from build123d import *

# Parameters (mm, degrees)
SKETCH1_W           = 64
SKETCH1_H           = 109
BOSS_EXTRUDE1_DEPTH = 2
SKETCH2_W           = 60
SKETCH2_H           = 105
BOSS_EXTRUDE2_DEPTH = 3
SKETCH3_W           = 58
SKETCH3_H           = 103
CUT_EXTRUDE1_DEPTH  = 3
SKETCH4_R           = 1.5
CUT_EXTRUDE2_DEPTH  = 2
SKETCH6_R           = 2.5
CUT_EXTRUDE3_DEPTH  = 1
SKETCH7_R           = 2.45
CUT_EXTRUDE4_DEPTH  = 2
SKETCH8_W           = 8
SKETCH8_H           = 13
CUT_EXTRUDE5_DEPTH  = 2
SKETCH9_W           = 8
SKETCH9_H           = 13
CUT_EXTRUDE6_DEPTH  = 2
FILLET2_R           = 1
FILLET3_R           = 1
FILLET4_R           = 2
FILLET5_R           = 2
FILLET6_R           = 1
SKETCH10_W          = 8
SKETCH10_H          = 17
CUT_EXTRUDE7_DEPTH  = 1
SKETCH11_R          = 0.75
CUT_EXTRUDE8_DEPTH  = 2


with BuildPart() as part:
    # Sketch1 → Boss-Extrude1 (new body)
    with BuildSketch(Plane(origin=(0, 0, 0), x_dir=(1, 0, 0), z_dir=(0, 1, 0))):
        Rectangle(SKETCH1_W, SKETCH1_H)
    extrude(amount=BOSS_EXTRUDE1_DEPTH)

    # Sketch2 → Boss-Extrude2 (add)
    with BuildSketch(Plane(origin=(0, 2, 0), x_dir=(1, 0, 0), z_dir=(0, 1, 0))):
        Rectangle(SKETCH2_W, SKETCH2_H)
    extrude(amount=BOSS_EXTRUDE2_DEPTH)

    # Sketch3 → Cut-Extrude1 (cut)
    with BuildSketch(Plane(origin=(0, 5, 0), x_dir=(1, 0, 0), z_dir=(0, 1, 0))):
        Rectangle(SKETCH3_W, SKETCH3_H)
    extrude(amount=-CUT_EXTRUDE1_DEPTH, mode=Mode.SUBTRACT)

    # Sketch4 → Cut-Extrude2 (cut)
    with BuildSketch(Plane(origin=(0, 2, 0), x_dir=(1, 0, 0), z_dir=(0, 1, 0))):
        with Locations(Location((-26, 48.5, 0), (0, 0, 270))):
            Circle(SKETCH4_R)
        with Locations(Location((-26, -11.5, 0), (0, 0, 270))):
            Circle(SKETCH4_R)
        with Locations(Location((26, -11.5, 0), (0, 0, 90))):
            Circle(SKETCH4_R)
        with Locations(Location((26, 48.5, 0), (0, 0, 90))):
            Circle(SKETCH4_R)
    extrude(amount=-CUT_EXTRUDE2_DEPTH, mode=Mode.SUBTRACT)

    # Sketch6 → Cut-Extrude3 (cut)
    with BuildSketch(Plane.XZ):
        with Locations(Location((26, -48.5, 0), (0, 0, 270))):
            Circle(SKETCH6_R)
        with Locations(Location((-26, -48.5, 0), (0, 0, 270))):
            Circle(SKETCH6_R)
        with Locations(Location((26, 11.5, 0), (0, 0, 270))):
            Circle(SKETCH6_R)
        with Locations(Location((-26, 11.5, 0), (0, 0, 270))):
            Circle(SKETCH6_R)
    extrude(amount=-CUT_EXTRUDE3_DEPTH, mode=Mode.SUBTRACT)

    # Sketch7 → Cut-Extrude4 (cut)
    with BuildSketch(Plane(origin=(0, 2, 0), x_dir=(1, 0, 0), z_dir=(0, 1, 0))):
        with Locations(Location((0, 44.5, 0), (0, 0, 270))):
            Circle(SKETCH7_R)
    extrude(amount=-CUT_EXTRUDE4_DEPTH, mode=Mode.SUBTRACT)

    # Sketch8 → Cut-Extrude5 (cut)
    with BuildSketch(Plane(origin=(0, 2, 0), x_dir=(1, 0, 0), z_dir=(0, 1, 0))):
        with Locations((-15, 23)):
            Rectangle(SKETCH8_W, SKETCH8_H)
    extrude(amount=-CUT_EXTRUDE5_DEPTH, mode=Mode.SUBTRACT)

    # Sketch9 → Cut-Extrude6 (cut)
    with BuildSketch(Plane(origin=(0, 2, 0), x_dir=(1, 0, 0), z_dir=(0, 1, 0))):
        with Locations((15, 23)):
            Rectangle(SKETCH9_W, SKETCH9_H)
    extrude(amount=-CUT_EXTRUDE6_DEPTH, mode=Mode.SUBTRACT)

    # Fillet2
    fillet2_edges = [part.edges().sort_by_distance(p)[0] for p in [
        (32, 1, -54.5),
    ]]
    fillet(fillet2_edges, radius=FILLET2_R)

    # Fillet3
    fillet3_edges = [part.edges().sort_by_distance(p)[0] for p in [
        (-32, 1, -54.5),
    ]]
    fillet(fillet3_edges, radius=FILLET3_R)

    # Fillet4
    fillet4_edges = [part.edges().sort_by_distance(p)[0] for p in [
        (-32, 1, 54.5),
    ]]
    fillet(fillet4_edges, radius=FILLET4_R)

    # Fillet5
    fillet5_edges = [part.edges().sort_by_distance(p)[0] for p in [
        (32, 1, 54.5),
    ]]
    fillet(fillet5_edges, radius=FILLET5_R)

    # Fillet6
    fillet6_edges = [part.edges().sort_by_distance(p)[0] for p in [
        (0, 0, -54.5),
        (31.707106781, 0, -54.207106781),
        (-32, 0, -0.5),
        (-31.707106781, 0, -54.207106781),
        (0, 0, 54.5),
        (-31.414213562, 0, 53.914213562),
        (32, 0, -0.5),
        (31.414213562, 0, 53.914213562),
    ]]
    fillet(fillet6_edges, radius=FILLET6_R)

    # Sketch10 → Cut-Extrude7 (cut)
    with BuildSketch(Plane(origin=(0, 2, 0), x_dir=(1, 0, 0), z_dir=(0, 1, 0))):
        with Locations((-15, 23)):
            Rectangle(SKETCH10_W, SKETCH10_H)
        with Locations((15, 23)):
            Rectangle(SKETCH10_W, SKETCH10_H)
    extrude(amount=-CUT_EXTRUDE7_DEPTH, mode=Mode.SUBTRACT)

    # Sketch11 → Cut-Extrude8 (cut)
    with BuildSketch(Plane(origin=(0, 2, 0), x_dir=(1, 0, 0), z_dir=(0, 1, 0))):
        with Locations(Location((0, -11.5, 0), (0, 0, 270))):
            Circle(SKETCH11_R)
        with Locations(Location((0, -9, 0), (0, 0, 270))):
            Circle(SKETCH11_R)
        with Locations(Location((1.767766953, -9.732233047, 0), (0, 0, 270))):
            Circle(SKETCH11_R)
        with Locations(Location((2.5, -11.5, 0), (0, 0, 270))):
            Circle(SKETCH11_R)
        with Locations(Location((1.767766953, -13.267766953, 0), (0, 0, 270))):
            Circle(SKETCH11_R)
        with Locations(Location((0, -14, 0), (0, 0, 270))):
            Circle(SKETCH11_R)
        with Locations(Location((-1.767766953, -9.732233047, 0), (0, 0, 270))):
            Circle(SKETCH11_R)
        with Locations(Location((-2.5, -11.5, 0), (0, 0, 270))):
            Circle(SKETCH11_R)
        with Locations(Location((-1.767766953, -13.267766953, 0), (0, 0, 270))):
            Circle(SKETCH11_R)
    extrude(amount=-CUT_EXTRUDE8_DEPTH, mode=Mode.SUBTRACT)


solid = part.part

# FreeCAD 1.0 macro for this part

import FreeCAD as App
import Part
import Sketcher
Q = App.Units.Quantity


def edges_at(feature, points):
    """Names of the edges that pass closest to the given points."""
    edges = feature.Shape.Edges
    near = lambda p: min(range(len(edges)), key=lambda i: edges[i].distToShape(Part.Vertex(*p))[0])
    return sorted({f"Edge{near(p) + 1}" for p in points})


def add_polygon(sketch, points):
    """Adds a closed chain of lines whose ends are joined by coincident constraints."""
    first, n = sketch.GeometryCount, len(points)
    for a, b in zip(points, points[1:] + points[:1]):
        sketch.addGeometry(Part.LineSegment(App.Vector(*a, 0), App.Vector(*b, 0)), False)
    for i in range(n):
        sketch.addConstraint(Sketcher.Constraint("Coincident", first + i, 2, first + (i + 1) % n, 1))

doc = App.newDocument("Part")
params = doc.addObject("Spreadsheet::Sheet", "Params")
for row, (alias, value) in enumerate([
    ("sketch1_width", "64 mm"),
    ("sketch1_height", "109 mm"),
    ("pad1_length", "2 mm"),
    ("sketch2_width", "60 mm"),
    ("sketch2_height", "105 mm"),
    ("pad2_length", "3 mm"),
    ("sketch3_width", "58 mm"),
    ("sketch3_height", "103 mm"),
    ("pocket1_length", "3 mm"),
    ("sketch4_diameter", "3 mm"),
    ("pocket2_length", "2 mm"),
    ("sketch5_diameter", "5 mm"),
    ("pocket3_length", "1 mm"),
    ("sketch6_diameter", "4.9 mm"),
    ("pocket4_length", "2 mm"),
    ("sketch7_width", "8 mm"),
    ("sketch7_height", "13 mm"),
    ("pocket5_length", "2 mm"),
    ("sketch8_width", "8 mm"),
    ("sketch8_height", "13 mm"),
    ("pocket6_length", "2 mm"),
    ("fillet_radius", "1 mm"),
    ("fillet2_radius", "1 mm"),
    ("fillet3_radius", "2 mm"),
    ("fillet4_radius", "2 mm"),
    ("fillet5_radius", "1 mm"),
    ("sketch9_width", "8 mm"),
    ("sketch9_height", "17 mm"),
    ("pocket7_length", "1 mm"),
    ("sketch10_diameter", "1.5 mm"),
    ("pocket8_length", "2 mm"),
], start=1):
    params.set(f"A{row}", alias)
    params.set(f"B{row}", "=" + value)
    params.setAlias(f"B{row}", alias)

body = doc.addObject("PartDesign::Body", "Body")

# Sketch on XZ plane
sketch1 = doc.addObject("Sketcher::SketchObject", "Sketch")
body.addObject(sketch1)
sketch1.AttachmentSupport = (doc.XZ_Plane, [""])
sketch1.MapMode = "FlatFace"
add_polygon(sketch1, [(-32, -54), (-32, 54), (32, 54), (32, -54)])  # lines 0-3
sketch1.addConstraint(Sketcher.Constraint("Vertical", 0))
sketch1.addConstraint(Sketcher.Constraint("Horizontal", 1))
sketch1.addConstraint(Sketcher.Constraint("Vertical", 2))
sketch1.addConstraint(Sketcher.Constraint("Horizontal", 3))
sketch1.addConstraint(Sketcher.Constraint("Symmetric", 0, 2, 2, 2, -1, 1))
sketch1.addConstraint(Sketcher.Constraint("DistanceX", 1, 1, 1, 2, Q("64 mm")))
sketch1.addConstraint(Sketcher.Constraint("DistanceY", 0, 1, 0, 2, Q("109 mm")))
sketch1.setExpression("Constraints[9]", "Params.sketch1_width")
sketch1.setExpression("Constraints[10]", "Params.sketch1_height")
pad1 = doc.addObject("PartDesign::Pad", "Pad")
body.addObject(pad1)
pad1.Profile = sketch1
pad1.setExpression("Length", "Params.pad1_length")
pad1.Reversed = True

# Sketch on XZ plane
sketch2 = doc.addObject("Sketcher::SketchObject", "Sketch001")
body.addObject(sketch2)
sketch2.AttachmentSupport = (doc.XZ_Plane, [""])
sketch2.MapMode = "FlatFace"
sketch2.AttachmentOffset = App.Placement(App.Vector(0, 0, -2), App.Rotation())
add_polygon(sketch2, [(-30, -52), (-30, 52), (30, 52), (30, -52)])  # lines 0-3
sketch2.addConstraint(Sketcher.Constraint("Vertical", 0))
sketch2.addConstraint(Sketcher.Constraint("Horizontal", 1))
sketch2.addConstraint(Sketcher.Constraint("Vertical", 2))
sketch2.addConstraint(Sketcher.Constraint("Horizontal", 3))
sketch2.addConstraint(Sketcher.Constraint("Symmetric", 0, 2, 2, 2, -1, 1))
sketch2.addConstraint(Sketcher.Constraint("DistanceX", 1, 1, 1, 2, Q("60 mm")))
sketch2.addConstraint(Sketcher.Constraint("DistanceY", 0, 1, 0, 2, Q("105 mm")))
sketch2.setExpression("Constraints[9]", "Params.sketch2_width")
sketch2.setExpression("Constraints[10]", "Params.sketch2_height")
pad2 = doc.addObject("PartDesign::Pad", "Pad001")
body.addObject(pad2)
pad2.Profile = sketch2
pad2.setExpression("Length", "Params.pad2_length")
pad2.Reversed = True

# Sketch on XZ plane
sketch3 = doc.addObject("Sketcher::SketchObject", "Sketch002")
body.addObject(sketch3)
sketch3.AttachmentSupport = (doc.XZ_Plane, [""])
sketch3.MapMode = "FlatFace"
sketch3.AttachmentOffset = App.Placement(App.Vector(0, 0, -5), App.Rotation())
add_polygon(sketch3, [(-29, -52), (-29, 52), (29, 52), (29, -52)])  # lines 0-3
sketch3.addConstraint(Sketcher.Constraint("Vertical", 0))
sketch3.addConstraint(Sketcher.Constraint("Horizontal", 1))
sketch3.addConstraint(Sketcher.Constraint("Vertical", 2))
sketch3.addConstraint(Sketcher.Constraint("Horizontal", 3))
sketch3.addConstraint(Sketcher.Constraint("Symmetric", 0, 2, 2, 2, -1, 1))
sketch3.addConstraint(Sketcher.Constraint("DistanceX", 1, 1, 1, 2, Q("58 mm")))
sketch3.addConstraint(Sketcher.Constraint("DistanceY", 0, 1, 0, 2, Q("103 mm")))
sketch3.setExpression("Constraints[9]", "Params.sketch3_width")
sketch3.setExpression("Constraints[10]", "Params.sketch3_height")
pocket1 = doc.addObject("PartDesign::Pocket", "Pocket")
body.addObject(pocket1)
pocket1.Profile = sketch3
pocket1.setExpression("Length", "Params.pocket1_length")
pocket1.Reversed = True

# Sketch on XZ plane
sketch4 = doc.addObject("Sketcher::SketchObject", "Sketch003")
body.addObject(sketch4)
sketch4.AttachmentSupport = (doc.XZ_Plane, [""])
sketch4.MapMode = "FlatFace"
sketch4.AttachmentOffset = App.Placement(App.Vector(0, 0, -2), App.Rotation())
sketch4.addGeometry(Part.Circle(App.Vector(-26, -48.5, 0), App.Vector(0, 0, 1), 1.5), False)
sketch4.addGeometry(Part.Circle(App.Vector(-26, 11.5, 0), App.Vector(0, 0, 1), 1.5), False)
sketch4.addGeometry(Part.Circle(App.Vector(26, 11.5, 0), App.Vector(0, 0, 1), 1.5), False)
sketch4.addGeometry(Part.Circle(App.Vector(26, -48.5, 0), App.Vector(0, 0, 1), 1.5), False)
sketch4.addConstraint(Sketcher.Constraint("Equal", 0, 1))
sketch4.addConstraint(Sketcher.Constraint("Equal", 1, 2))
sketch4.addConstraint(Sketcher.Constraint("Equal", 2, 3))
sketch4.addConstraint(Sketcher.Constraint("Symmetric", 1, 3, 2, 3, -2))
sketch4.addConstraint(Sketcher.Constraint("Symmetric", 0, 3, 3, 3, -2))
sketch4.addConstraint(Sketcher.Constraint("Vertical", 0, 3, 1, 3))
sketch4.addConstraint(Sketcher.Constraint("Diameter", 0, Q("3 mm")))
sketch4.addConstraint(Sketcher.Constraint("DistanceX", 0, 3, -1, 1, Q("26 mm")))
sketch4.addConstraint(Sketcher.Constraint("DistanceY", 0, 3, 1, 3, Q("60 mm")))
sketch4.addConstraint(Sketcher.Constraint("DistanceY", 0, 3, -1, 1, Q("48.5 mm")))
sketch4.setExpression("Constraints[6]", "Params.sketch4_diameter")
pocket2 = doc.addObject("PartDesign::Pocket", "Pocket001")
body.addObject(pocket2)
pocket2.Profile = sketch4
pocket2.setExpression("Length", "Params.pocket2_length")
pocket2.Reversed = True

# Sketch on XZ plane
sketch5 = doc.addObject("Sketcher::SketchObject", "Sketch004")
body.addObject(sketch5)
sketch5.AttachmentSupport = (doc.XZ_Plane, [""])
sketch5.MapMode = "FlatFace"
sketch5.addGeometry(Part.Circle(App.Vector(26, -48.5, 0), App.Vector(0, 0, 1), 2.5), False)
sketch5.addGeometry(Part.Circle(App.Vector(-26, -48.5, 0), App.Vector(0, 0, 1), 2.5), False)
sketch5.addGeometry(Part.Circle(App.Vector(26, 11.5, 0), App.Vector(0, 0, 1), 2.5), False)
sketch5.addGeometry(Part.Circle(App.Vector(-26, 11.5, 0), App.Vector(0, 0, 1), 2.5), False)
sketch5.addConstraint(Sketcher.Constraint("Equal", 0, 1))
sketch5.addConstraint(Sketcher.Constraint("Equal", 1, 2))
sketch5.addConstraint(Sketcher.Constraint("Equal", 2, 3))
sketch5.addConstraint(Sketcher.Constraint("Symmetric", 0, 3, 1, 3, -2))
sketch5.addConstraint(Sketcher.Constraint("Symmetric", 2, 3, 3, 3, -2))
sketch5.addConstraint(Sketcher.Constraint("Vertical", 0, 3, 2, 3))
sketch5.addConstraint(Sketcher.Constraint("Diameter", 0, Q("5 mm")))
sketch5.addConstraint(Sketcher.Constraint("DistanceX", -1, 1, 0, 3, Q("26 mm")))
sketch5.addConstraint(Sketcher.Constraint("DistanceY", 0, 3, 2, 3, Q("60 mm")))
sketch5.addConstraint(Sketcher.Constraint("DistanceY", 0, 3, -1, 1, Q("48.5 mm")))
sketch5.setExpression("Constraints[6]", "Params.sketch5_diameter")
pocket3 = doc.addObject("PartDesign::Pocket", "Pocket002")
body.addObject(pocket3)
pocket3.Profile = sketch5
pocket3.setExpression("Length", "Params.pocket3_length")

# Sketch on XZ plane
sketch6 = doc.addObject("Sketcher::SketchObject", "Sketch005")
body.addObject(sketch6)
sketch6.AttachmentSupport = (doc.XZ_Plane, [""])
sketch6.MapMode = "FlatFace"
sketch6.AttachmentOffset = App.Placement(App.Vector(0, 0, -2), App.Rotation())
sketch6.addGeometry(Part.Circle(App.Vector(0, -44.5, 0), App.Vector(0, 0, 1), 2.5), False)
sketch6.addConstraint(Sketcher.Constraint("PointOnObject", 0, 3, -2))
sketch6.addConstraint(Sketcher.Constraint("Diameter", 0, Q("4.9 mm")))
sketch6.addConstraint(Sketcher.Constraint("DistanceY", 0, 3, -1, 1, Q("44.5 mm")))
sketch6.setExpression("Constraints[1]", "Params.sketch6_diameter")
pocket4 = doc.addObject("PartDesign::Pocket", "Pocket003")
body.addObject(pocket4)
pocket4.Profile = sketch6
pocket4.setExpression("Length", "Params.pocket4_length")
pocket4.Reversed = True

# Sketch on XZ plane
sketch7 = doc.addObject("Sketcher::SketchObject", "Sketch006")
body.addObject(sketch7)
sketch7.AttachmentSupport = (doc.XZ_Plane, [""])
sketch7.MapMode = "FlatFace"
sketch7.AttachmentOffset = App.Placement(App.Vector(0, 0, -2), App.Rotation())
add_polygon(sketch7, [(-19, -30), (-19, -16), (-11, -16), (-11, -30)])  # lines 0-3
sketch7.addConstraint(Sketcher.Constraint("Vertical", 0))
sketch7.addConstraint(Sketcher.Constraint("Horizontal", 1))
sketch7.addConstraint(Sketcher.Constraint("Vertical", 2))
sketch7.addConstraint(Sketcher.Constraint("Horizontal", 3))
sketch7.addConstraint(Sketcher.Constraint("DistanceX", 1, 1, 1, 2, Q("8 mm")))
sketch7.addConstraint(Sketcher.Constraint("DistanceY", 0, 1, 0, 2, Q("13 mm")))
sketch7.addConstraint(Sketcher.Constraint("DistanceX", 0, 2, -1, 1, Q("19 mm")))
sketch7.addConstraint(Sketcher.Constraint("DistanceY", 0, 2, -1, 1, Q("16.5 mm")))
sketch7.setExpression("Constraints[8]", "Params.sketch7_width")
sketch7.setExpression("Constraints[9]", "Params.sketch7_height")
pocket5 = doc.addObject("PartDesign::Pocket", "Pocket004")
body.addObject(pocket5)
pocket5.Profile = sketch7
pocket5.setExpression("Length", "Params.pocket5_length")
pocket5.Reversed = True

# Sketch on XZ plane
sketch8 = doc.addObject("Sketcher::SketchObject", "Sketch007")
body.addObject(sketch8)
sketch8.AttachmentSupport = (doc.XZ_Plane, [""])
sketch8.MapMode = "FlatFace"
sketch8.AttachmentOffset = App.Placement(App.Vector(0, 0, -2), App.Rotation())
add_polygon(sketch8, [(11, -30), (11, -16), (19, -16), (19, -30)])  # lines 0-3
sketch8.addConstraint(Sketcher.Constraint("Vertical", 0))
sketch8.addConstraint(Sketcher.Constraint("Horizontal", 1))
sketch8.addConstraint(Sketcher.Constraint("Vertical", 2))
sketch8.addConstraint(Sketcher.Constraint("Horizontal", 3))
sketch8.addConstraint(Sketcher.Constraint("DistanceX", 1, 1, 1, 2, Q("8 mm")))
sketch8.addConstraint(Sketcher.Constraint("DistanceY", 0, 1, 0, 2, Q("13 mm")))
sketch8.addConstraint(Sketcher.Constraint("DistanceX", -1, 1, 0, 2, Q("11 mm")))
sketch8.addConstraint(Sketcher.Constraint("DistanceY", 0, 2, -1, 1, Q("16.5 mm")))
sketch8.setExpression("Constraints[8]", "Params.sketch8_width")
sketch8.setExpression("Constraints[9]", "Params.sketch8_height")
pocket6 = doc.addObject("PartDesign::Pocket", "Pocket005")
body.addObject(pocket6)
pocket6.Profile = sketch8
pocket6.setExpression("Length", "Params.pocket6_length")
pocket6.Reversed = True
doc.recompute()

fillet = doc.addObject("PartDesign::Fillet", "Fillet")
body.addObject(fillet)
fillet.Base = (pocket6, edges_at(pocket6, [(32, 1, -54.5)]))
fillet.setExpression("Radius", "Params.fillet_radius")
doc.recompute()

fillet2 = doc.addObject("PartDesign::Fillet", "Fillet001")
body.addObject(fillet2)
fillet2.Base = (fillet, edges_at(fillet, [(-32, 1, -54.5)]))
fillet2.setExpression("Radius", "Params.fillet2_radius")
doc.recompute()

fillet3 = doc.addObject("PartDesign::Fillet", "Fillet002")
body.addObject(fillet3)
fillet3.Base = (fillet2, edges_at(fillet2, [(-32, 1, 54.5)]))
fillet3.setExpression("Radius", "Params.fillet3_radius")
doc.recompute()

fillet4 = doc.addObject("PartDesign::Fillet", "Fillet003")
body.addObject(fillet4)
fillet4.Base = (fillet3, edges_at(fillet3, [(32, 1, 54.5)]))
fillet4.setExpression("Radius", "Params.fillet4_radius")
doc.recompute()

fillet5 = doc.addObject("PartDesign::Fillet", "Fillet004")
body.addObject(fillet5)
fillet5.Base = (fillet4, edges_at(fillet4, [
    (0, 0, -54.5),
    (31.707, 0, -54.207),
    (-32, 0, -0.5),
    (-31.707, 0, -54.207),
    (0, 0, 54.5),
    (-31.414, 0, 53.914),
    (32, 0, -0.5),
    (31.414, 0, 53.914),
]))
fillet5.setExpression("Radius", "Params.fillet5_radius")

# Sketch on XZ plane
sketch9 = doc.addObject("Sketcher::SketchObject", "Sketch008")
body.addObject(sketch9)
sketch9.AttachmentSupport = (doc.XZ_Plane, [""])
sketch9.MapMode = "FlatFace"
sketch9.AttachmentOffset = App.Placement(App.Vector(0, 0, -2), App.Rotation())
add_polygon(sketch9, [(-19, -32), (-19, -14), (-11, -14), (-11, -32)])  # lines 0-3
add_polygon(sketch9, [(11, -32), (11, -14), (19, -14), (19, -32)])  # lines 4-7
sketch9.addConstraint(Sketcher.Constraint("Vertical", 0))
sketch9.addConstraint(Sketcher.Constraint("Horizontal", 1))
sketch9.addConstraint(Sketcher.Constraint("Vertical", 2))
sketch9.addConstraint(Sketcher.Constraint("Horizontal", 3))
sketch9.addConstraint(Sketcher.Constraint("Vertical", 4))
sketch9.addConstraint(Sketcher.Constraint("Horizontal", 5))
sketch9.addConstraint(Sketcher.Constraint("Vertical", 6))
sketch9.addConstraint(Sketcher.Constraint("Horizontal", 7))
sketch9.addConstraint(Sketcher.Constraint("Symmetric", 1, 2, 4, 2, -2))
sketch9.addConstraint(Sketcher.Constraint("Symmetric", 3, 2, 6, 2, -2))
sketch9.addConstraint(Sketcher.Constraint("DistanceX", 1, 1, 1, 2, Q("8 mm")))
sketch9.addConstraint(Sketcher.Constraint("DistanceY", 0, 1, 0, 2, Q("17 mm")))
sketch9.addConstraint(Sketcher.Constraint("DistanceX", 0, 2, -1, 1, Q("19 mm")))
sketch9.addConstraint(Sketcher.Constraint("DistanceY", 0, 2, -1, 1, Q("14.5 mm")))
sketch9.setExpression("Constraints[18]", "Params.sketch9_width")
sketch9.setExpression("Constraints[19]", "Params.sketch9_height")
pocket7 = doc.addObject("PartDesign::Pocket", "Pocket006")
body.addObject(pocket7)
pocket7.Profile = sketch9
pocket7.setExpression("Length", "Params.pocket7_length")
pocket7.Reversed = True

# Sketch on XZ plane
sketch10 = doc.addObject("Sketcher::SketchObject", "Sketch009")
body.addObject(sketch10)
sketch10.AttachmentSupport = (doc.XZ_Plane, [""])
sketch10.MapMode = "FlatFace"
sketch10.AttachmentOffset = App.Placement(App.Vector(0, 0, -2), App.Rotation())
sketch10.addGeometry(Part.Circle(App.Vector(0, 11.5, 0), App.Vector(0, 0, 1), 0.8), False)
sketch10.addGeometry(Part.Circle(App.Vector(0, 9, 0), App.Vector(0, 0, 1), 0.8), False)
sketch10.addGeometry(Part.Circle(App.Vector(1.8, 9.7, 0), App.Vector(0, 0, 1), 0.8), False)
sketch10.addGeometry(Part.Circle(App.Vector(2.5, 11.5, 0), App.Vector(0, 0, 1), 0.8), False)
sketch10.addGeometry(Part.Circle(App.Vector(1.8, 13.3, 0), App.Vector(0, 0, 1), 0.8), False)
sketch10.addGeometry(Part.Circle(App.Vector(0, 14, 0), App.Vector(0, 0, 1), 0.8), False)
sketch10.addGeometry(Part.Circle(App.Vector(-1.8, 9.7, 0), App.Vector(0, 0, 1), 0.8), False)
sketch10.addGeometry(Part.Circle(App.Vector(-2.5, 11.5, 0), App.Vector(0, 0, 1), 0.8), False)
sketch10.addGeometry(Part.Circle(App.Vector(-1.8, 13.3, 0), App.Vector(0, 0, 1), 0.8), False)
sketch10.addConstraint(Sketcher.Constraint("Equal", 0, 1))
sketch10.addConstraint(Sketcher.Constraint("Equal", 1, 2))
sketch10.addConstraint(Sketcher.Constraint("Equal", 2, 3))
sketch10.addConstraint(Sketcher.Constraint("Equal", 3, 4))
sketch10.addConstraint(Sketcher.Constraint("Equal", 4, 5))
sketch10.addConstraint(Sketcher.Constraint("Equal", 5, 6))
sketch10.addConstraint(Sketcher.Constraint("Equal", 6, 7))
sketch10.addConstraint(Sketcher.Constraint("Equal", 7, 8))
sketch10.addConstraint(Sketcher.Constraint("Symmetric", 2, 3, 6, 3, -2))
sketch10.addConstraint(Sketcher.Constraint("Symmetric", 3, 3, 7, 3, -2))
sketch10.addConstraint(Sketcher.Constraint("Symmetric", 4, 3, 8, 3, -2))
sketch10.addConstraint(Sketcher.Constraint("PointOnObject", 0, 3, -2))
sketch10.addConstraint(Sketcher.Constraint("PointOnObject", 1, 3, -2))
sketch10.addConstraint(Sketcher.Constraint("PointOnObject", 5, 3, -2))
sketch10.addConstraint(Sketcher.Constraint("Horizontal", 0, 3, 3, 3))
sketch10.addConstraint(Sketcher.Constraint("Vertical", 2, 3, 4, 3))
sketch10.addConstraint(Sketcher.Constraint("Diameter", 0, Q("1.5 mm")))
sketch10.addConstraint(Sketcher.Constraint("DistanceY", -1, 1, 1, 3, Q("9 mm")))
sketch10.addConstraint(Sketcher.Constraint("DistanceY", -1, 1, 5, 3, Q("14 mm")))
sketch10.addConstraint(Sketcher.Constraint("DistanceY", -1, 1, 0, 3, Q("11.5 mm")))
sketch10.addConstraint(Sketcher.Constraint("DistanceX", -1, 1, 3, 3, Q("2.5 mm")))
sketch10.addConstraint(Sketcher.Constraint("DistanceX", -1, 1, 2, 3, Q("1.767767 mm")))
sketch10.addConstraint(Sketcher.Constraint("DistanceY", -1, 1, 2, 3, Q("9.732233 mm")))
sketch10.addConstraint(Sketcher.Constraint("DistanceY", -1, 1, 4, 3, Q("13.267767 mm")))
sketch10.setExpression("Constraints[16]", "Params.sketch10_diameter")
pocket8 = doc.addObject("PartDesign::Pocket", "Pocket007")
body.addObject(pocket8)
pocket8.Profile = sketch10
pocket8.setExpression("Length", "Params.pocket8_length")
pocket8.Reversed = True

doc.recompute()
